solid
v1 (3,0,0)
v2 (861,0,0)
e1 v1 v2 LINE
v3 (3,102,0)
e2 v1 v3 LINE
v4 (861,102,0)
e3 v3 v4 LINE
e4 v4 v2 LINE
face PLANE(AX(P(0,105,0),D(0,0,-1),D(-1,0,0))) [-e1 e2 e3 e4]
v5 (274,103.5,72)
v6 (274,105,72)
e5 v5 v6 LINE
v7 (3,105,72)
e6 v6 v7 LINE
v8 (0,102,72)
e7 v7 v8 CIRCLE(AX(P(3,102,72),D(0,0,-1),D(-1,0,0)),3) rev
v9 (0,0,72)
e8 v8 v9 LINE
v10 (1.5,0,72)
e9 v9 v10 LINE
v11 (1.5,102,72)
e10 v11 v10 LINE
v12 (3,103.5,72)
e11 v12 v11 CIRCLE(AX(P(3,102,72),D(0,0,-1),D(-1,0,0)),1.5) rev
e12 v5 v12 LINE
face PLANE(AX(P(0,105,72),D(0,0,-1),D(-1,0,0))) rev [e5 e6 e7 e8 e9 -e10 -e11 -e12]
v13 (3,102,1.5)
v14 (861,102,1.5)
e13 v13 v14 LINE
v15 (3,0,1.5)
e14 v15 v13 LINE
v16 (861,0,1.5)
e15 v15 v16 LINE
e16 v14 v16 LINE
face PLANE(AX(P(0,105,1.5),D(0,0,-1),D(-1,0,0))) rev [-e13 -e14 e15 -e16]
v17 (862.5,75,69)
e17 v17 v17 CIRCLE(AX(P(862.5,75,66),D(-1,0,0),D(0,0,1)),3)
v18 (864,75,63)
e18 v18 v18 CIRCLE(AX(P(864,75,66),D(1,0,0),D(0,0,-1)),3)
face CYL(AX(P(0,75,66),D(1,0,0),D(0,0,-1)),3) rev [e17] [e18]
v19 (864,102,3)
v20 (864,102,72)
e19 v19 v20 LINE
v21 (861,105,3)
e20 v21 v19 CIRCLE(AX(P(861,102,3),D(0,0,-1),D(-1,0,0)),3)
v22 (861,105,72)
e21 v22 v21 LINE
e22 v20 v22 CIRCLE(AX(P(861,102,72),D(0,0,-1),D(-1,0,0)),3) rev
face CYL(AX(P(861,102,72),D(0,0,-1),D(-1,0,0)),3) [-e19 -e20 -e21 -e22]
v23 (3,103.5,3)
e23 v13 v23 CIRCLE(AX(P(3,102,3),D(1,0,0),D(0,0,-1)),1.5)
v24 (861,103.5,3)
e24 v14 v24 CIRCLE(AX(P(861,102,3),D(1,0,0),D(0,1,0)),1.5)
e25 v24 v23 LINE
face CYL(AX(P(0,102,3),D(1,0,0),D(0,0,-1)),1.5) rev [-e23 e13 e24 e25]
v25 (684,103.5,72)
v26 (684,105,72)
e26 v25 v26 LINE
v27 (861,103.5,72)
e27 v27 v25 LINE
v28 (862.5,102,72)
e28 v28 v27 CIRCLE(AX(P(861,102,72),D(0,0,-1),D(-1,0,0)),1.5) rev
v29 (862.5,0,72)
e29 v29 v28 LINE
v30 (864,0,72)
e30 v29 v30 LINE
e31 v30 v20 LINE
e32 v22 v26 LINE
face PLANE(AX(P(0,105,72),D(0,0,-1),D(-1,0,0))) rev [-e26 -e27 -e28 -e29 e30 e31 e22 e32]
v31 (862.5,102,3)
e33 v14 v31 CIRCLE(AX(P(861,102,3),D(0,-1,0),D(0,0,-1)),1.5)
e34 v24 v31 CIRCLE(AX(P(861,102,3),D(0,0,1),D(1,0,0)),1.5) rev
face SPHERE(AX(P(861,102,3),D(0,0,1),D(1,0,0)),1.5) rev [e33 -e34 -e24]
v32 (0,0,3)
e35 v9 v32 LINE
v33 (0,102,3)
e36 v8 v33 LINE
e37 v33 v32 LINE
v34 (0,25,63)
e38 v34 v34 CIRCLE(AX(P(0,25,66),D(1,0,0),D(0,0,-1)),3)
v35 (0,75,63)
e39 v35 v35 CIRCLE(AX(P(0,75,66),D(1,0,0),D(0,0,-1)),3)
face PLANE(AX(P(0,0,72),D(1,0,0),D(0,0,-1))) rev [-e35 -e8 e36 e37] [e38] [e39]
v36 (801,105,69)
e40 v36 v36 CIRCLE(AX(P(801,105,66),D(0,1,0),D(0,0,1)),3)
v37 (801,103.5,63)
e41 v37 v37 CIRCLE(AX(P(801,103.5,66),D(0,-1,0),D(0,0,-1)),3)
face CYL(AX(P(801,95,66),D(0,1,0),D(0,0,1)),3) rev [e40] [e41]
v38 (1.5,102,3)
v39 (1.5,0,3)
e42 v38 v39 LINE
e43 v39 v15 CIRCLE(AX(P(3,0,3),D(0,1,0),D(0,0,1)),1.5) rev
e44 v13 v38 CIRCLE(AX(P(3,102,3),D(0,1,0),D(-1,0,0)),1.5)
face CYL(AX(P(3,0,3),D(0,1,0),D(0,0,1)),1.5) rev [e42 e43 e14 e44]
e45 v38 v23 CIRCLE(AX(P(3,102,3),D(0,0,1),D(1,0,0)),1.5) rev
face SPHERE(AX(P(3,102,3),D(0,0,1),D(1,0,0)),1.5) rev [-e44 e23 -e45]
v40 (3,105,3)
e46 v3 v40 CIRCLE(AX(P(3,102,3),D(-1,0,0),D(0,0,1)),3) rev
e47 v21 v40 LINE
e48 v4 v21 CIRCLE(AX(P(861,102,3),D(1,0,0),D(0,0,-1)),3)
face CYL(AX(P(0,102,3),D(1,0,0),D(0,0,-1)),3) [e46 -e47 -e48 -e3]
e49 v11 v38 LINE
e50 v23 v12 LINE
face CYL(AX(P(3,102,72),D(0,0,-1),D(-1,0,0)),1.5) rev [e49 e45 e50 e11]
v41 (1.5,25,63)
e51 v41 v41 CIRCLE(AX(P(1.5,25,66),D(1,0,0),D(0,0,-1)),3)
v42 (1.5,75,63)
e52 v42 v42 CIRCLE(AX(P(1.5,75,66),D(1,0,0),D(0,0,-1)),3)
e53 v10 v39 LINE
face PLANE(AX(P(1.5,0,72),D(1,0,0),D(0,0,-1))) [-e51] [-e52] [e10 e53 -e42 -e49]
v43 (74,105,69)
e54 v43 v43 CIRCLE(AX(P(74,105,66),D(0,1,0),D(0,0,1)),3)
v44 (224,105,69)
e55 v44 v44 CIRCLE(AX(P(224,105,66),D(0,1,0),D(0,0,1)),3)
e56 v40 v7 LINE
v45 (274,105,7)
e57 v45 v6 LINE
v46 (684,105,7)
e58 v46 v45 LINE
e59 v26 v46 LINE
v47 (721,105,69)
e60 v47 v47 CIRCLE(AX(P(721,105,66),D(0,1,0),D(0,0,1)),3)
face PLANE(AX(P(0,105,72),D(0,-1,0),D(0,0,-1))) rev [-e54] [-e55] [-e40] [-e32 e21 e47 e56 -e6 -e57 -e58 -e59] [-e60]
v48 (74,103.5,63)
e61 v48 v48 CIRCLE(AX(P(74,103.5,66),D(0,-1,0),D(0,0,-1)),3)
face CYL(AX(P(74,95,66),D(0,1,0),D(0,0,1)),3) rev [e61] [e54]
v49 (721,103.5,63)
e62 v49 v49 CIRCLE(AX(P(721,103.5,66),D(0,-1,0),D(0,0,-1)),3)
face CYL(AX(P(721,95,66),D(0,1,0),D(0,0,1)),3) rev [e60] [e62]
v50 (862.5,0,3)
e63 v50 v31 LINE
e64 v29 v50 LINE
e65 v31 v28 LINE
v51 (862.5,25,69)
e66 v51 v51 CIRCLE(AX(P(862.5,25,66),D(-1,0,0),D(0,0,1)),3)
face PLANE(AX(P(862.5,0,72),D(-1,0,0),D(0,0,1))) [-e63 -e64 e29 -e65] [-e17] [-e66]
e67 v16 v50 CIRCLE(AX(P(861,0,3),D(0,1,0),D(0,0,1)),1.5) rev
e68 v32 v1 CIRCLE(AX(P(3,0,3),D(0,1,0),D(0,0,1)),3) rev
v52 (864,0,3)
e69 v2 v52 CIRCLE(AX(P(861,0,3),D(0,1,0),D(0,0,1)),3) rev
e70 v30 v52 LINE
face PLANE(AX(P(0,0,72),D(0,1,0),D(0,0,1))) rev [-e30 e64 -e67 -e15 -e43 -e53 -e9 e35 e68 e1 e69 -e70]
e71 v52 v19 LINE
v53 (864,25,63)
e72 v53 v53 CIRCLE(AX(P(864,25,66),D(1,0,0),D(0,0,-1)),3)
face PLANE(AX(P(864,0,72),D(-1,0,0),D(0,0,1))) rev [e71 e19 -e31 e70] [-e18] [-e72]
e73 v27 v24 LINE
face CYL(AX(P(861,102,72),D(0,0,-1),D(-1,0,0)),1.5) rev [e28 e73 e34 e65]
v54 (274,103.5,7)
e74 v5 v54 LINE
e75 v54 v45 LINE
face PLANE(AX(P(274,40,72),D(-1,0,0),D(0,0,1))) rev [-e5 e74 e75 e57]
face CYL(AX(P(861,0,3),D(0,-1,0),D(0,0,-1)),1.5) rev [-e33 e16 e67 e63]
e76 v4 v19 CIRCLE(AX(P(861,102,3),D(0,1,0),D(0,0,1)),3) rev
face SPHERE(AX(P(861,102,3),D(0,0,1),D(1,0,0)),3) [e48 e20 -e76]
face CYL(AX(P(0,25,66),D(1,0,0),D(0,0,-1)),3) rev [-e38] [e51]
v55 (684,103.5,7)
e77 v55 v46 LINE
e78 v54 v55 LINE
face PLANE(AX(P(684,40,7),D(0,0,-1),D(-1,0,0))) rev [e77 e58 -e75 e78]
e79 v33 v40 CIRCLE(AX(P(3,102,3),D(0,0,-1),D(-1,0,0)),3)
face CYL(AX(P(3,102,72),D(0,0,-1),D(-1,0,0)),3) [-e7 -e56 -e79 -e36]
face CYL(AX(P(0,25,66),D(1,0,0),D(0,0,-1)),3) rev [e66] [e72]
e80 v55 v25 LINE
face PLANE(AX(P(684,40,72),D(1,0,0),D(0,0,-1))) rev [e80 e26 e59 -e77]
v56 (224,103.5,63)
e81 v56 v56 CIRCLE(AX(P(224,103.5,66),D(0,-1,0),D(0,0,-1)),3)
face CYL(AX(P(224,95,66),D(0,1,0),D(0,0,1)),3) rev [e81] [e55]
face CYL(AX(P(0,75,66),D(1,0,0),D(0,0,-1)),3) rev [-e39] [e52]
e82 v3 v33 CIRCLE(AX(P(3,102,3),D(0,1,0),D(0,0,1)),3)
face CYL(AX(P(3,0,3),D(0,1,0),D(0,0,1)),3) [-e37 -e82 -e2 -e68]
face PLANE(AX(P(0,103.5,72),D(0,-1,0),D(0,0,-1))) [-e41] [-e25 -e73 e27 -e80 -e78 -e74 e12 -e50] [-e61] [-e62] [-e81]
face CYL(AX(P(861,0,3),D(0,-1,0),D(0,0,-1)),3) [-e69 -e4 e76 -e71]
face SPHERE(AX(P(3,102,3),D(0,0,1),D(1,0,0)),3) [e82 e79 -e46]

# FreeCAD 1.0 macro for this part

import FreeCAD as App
import Part
import Sketcher

V = App.Vector


def edges_at(feature, points):
    """Names of the edges that pass closest to the given points."""
    edges = feature.Shape.Edges
    near = lambda p: min(range(len(edges)), key=lambda i: edges[i].distToShape(Part.Vertex(*p))[0])
    return sorted({f"Edge{near(p) + 1}" for p in points})


def faces_at(feature, points):
    """Names of the faces that lie closest to the given points."""
    faces = feature.Shape.Faces
    near = lambda p: min(range(len(faces)), key=lambda i: faces[i].distToShape(Part.Vertex(*p))[0])
    return sorted({f"Face{near(p) + 1}" for p in points})

doc = App.newDocument("Part")
body = doc.addObject("PartDesign::Body", "Body")

sketch1 = body.newObject("Sketcher::SketchObject", "Sketch")
sketch1.AttachmentSupport = (doc.getObject("XY_Plane"), [""])
sketch1.MapMode = "FlatFace"
sketch1.addGeometry(Part.LineSegment(V(0, 105, 0), V(0, 0, 0)), False)
sketch1.addGeometry(Part.LineSegment(V(0, 0, 0), V(864, 0, 0)), False)
sketch1.addGeometry(Part.LineSegment(V(864, 0, 0), V(864, 105, 0)), False)
sketch1.addGeometry(Part.LineSegment(V(864, 105, 0), V(0, 105, 0)), False)
sketch1.addConstraint(Sketcher.Constraint("Coincident", 0, 2, 1, 1))
sketch1.addConstraint(Sketcher.Constraint("Coincident", 1, 2, 2, 1))
sketch1.addConstraint(Sketcher.Constraint("Coincident", 2, 2, 3, 1))
sketch1.addConstraint(Sketcher.Constraint("Coincident", 3, 2, 0, 1))
sketch1.addConstraint(Sketcher.Constraint("Vertical", 0))
sketch1.addConstraint(Sketcher.Constraint("Horizontal", 1))
sketch1.addConstraint(Sketcher.Constraint("Vertical", 2))
sketch1.addConstraint(Sketcher.Constraint("Horizontal", 3))
sketch1.addConstraint(Sketcher.Constraint("Coincident", 0, 2, -1, 1))
sketch1.addConstraint(Sketcher.Constraint("DistanceX", 1, 1, 1, 2, 864.0))
sketch1.addConstraint(Sketcher.Constraint("DistanceY", 0, 2, 0, 1, 105.0))
pad1 = body.newObject("PartDesign::Pad", "Pad")
pad1.Profile = sketch1
pad1.Length = 72
doc.recompute()

fillet = body.newObject("PartDesign::Fillet", "Fillet")
fillet.Base = (pad1, edges_at(pad1, [
    (432, 105, 0),
    (864, 52.5, 0),
    (0, 52.5, 0),
    (0, 105, 36),
    (864, 105, 36),
]))
fillet.Radius = 3
doc.recompute()

thickness = body.newObject("PartDesign::Thickness", "Thickness")
thickness.Base = (fillet, faces_at(fillet, [(432, 52.5, 72), (432, 0, 36)]))
thickness.Value = 1.5
thickness.Reversed = True
thickness.Join = "Intersection"

sketch2 = body.newObject("Sketcher::SketchObject", "Sketch001")
sketch2.AttachmentSupport = (doc.getObject("XZ_Plane"), [""])
sketch2.MapMode = "FlatFace"
sketch2.AttachmentOffset = App.Placement(V(0, 0, -105), App.Rotation())
sketch2.addGeometry(Part.LineSegment(V(274, 7, 0), V(274, 72, 0)), False)
sketch2.addGeometry(Part.LineSegment(V(274, 72, 0), V(684, 72, 0)), False)
sketch2.addGeometry(Part.LineSegment(V(684, 72, 0), V(684, 7, 0)), False)
sketch2.addGeometry(Part.LineSegment(V(684, 7, 0), V(274, 7, 0)), False)
sketch2.addConstraint(Sketcher.Constraint("Coincident", 0, 2, 1, 1))
sketch2.addConstraint(Sketcher.Constraint("Coincident", 1, 2, 2, 1))
sketch2.addConstraint(Sketcher.Constraint("Coincident", 2, 2, 3, 1))
sketch2.addConstraint(Sketcher.Constraint("Coincident", 3, 2, 0, 1))
sketch2.addConstraint(Sketcher.Constraint("Vertical", 0))
sketch2.addConstraint(Sketcher.Constraint("Horizontal", 1))
sketch2.addConstraint(Sketcher.Constraint("Vertical", 2))
sketch2.addConstraint(Sketcher.Constraint("Horizontal", 3))
sketch2.addConstraint(Sketcher.Constraint("DistanceX", 1, 1, 1, 2, 410.0))
sketch2.addConstraint(Sketcher.Constraint("DistanceY", 0, 1, 0, 2, 65.0))
sketch2.addConstraint(Sketcher.Constraint("DistanceX", -1, 1, 0, 2, 274.0))
sketch2.addConstraint(Sketcher.Constraint("DistanceY", -1, 1, 0, 2, 72.0))
pocket1 = body.newObject("PartDesign::Pocket", "Pocket")
pocket1.Profile = sketch2
pocket1.Length = 65
pocket1.Reversed = True

sketch3 = body.newObject("Sketcher::SketchObject", "Sketch002")
sketch3.AttachmentSupport = (doc.getObject("YZ_Plane"), [""])
sketch3.MapMode = "FlatFace"
sketch3.AttachmentOffset = App.Placement(V(0, 0, 864), App.Rotation())
sketch3.addGeometry(Part.Circle(V(75, 66, 0), V(0, 0, 1), 3), False)
sketch3.addGeometry(Part.Circle(V(25, 66, 0), V(0, 0, 1), 3), False)
sketch3.addConstraint(Sketcher.Constraint("Equal", 0, 1))
sketch3.addConstraint(Sketcher.Constraint("Horizontal", 0, 3, 1, 3))
sketch3.addConstraint(Sketcher.Constraint("Diameter", 0, 6.0))
sketch3.addConstraint(Sketcher.Constraint("DistanceX", -1, 1, 0, 3, 75.0))
sketch3.addConstraint(Sketcher.Constraint("DistanceY", -1, 1, 0, 3, 66.0))
sketch3.addConstraint(Sketcher.Constraint("DistanceX", -1, 1, 1, 3, 25.0))
pocket2 = body.newObject("PartDesign::Pocket", "Pocket001")
pocket2.Profile = sketch3
pocket2.Type = "ThroughAll"

sketch4 = body.newObject("Sketcher::SketchObject", "Sketch003")
sketch4.AttachmentSupport = (doc.getObject("XZ_Plane"), [""])
sketch4.MapMode = "FlatFace"
sketch4.AttachmentOffset = App.Placement(V(0, 0, -105), App.Rotation())
sketch4.addGeometry(Part.Circle(V(721, 66, 0), V(0, 0, 1), 3), False)
sketch4.addGeometry(Part.Circle(V(801, 66, 0), V(0, 0, 1), 3), False)
sketch4.addGeometry(Part.Circle(V(74, 66, 0), V(0, 0, 1), 3), False)
sketch4.addGeometry(Part.Circle(V(224, 66, 0), V(0, 0, 1), 3), False)
sketch4.addConstraint(Sketcher.Constraint("Equal", 0, 1))
sketch4.addConstraint(Sketcher.Constraint("Equal", 1, 2))
sketch4.addConstraint(Sketcher.Constraint("Equal", 2, 3))
sketch4.addConstraint(Sketcher.Constraint("Horizontal", 0, 3, 1, 3))
sketch4.addConstraint(Sketcher.Constraint("Horizontal", 1, 3, 2, 3))
sketch4.addConstraint(Sketcher.Constraint("Horizontal", 2, 3, 3, 3))
sketch4.addConstraint(Sketcher.Constraint("Diameter", 0, 6.0))
sketch4.addConstraint(Sketcher.Constraint("DistanceX", -1, 1, 0, 3, 721.0))
sketch4.addConstraint(Sketcher.Constraint("DistanceY", -1, 1, 0, 3, 66.0))
sketch4.addConstraint(Sketcher.Constraint("DistanceX", -1, 1, 1, 3, 801.0))
sketch4.addConstraint(Sketcher.Constraint("DistanceX", -1, 1, 2, 3, 74.0))
sketch4.addConstraint(Sketcher.Constraint("DistanceX", -1, 1, 3, 3, 224.0))
pocket3 = body.newObject("PartDesign::Pocket", "Pocket002")
pocket3.Profile = sketch4
pocket3.Length = 10
pocket3.Reversed = True

doc.recompute()
